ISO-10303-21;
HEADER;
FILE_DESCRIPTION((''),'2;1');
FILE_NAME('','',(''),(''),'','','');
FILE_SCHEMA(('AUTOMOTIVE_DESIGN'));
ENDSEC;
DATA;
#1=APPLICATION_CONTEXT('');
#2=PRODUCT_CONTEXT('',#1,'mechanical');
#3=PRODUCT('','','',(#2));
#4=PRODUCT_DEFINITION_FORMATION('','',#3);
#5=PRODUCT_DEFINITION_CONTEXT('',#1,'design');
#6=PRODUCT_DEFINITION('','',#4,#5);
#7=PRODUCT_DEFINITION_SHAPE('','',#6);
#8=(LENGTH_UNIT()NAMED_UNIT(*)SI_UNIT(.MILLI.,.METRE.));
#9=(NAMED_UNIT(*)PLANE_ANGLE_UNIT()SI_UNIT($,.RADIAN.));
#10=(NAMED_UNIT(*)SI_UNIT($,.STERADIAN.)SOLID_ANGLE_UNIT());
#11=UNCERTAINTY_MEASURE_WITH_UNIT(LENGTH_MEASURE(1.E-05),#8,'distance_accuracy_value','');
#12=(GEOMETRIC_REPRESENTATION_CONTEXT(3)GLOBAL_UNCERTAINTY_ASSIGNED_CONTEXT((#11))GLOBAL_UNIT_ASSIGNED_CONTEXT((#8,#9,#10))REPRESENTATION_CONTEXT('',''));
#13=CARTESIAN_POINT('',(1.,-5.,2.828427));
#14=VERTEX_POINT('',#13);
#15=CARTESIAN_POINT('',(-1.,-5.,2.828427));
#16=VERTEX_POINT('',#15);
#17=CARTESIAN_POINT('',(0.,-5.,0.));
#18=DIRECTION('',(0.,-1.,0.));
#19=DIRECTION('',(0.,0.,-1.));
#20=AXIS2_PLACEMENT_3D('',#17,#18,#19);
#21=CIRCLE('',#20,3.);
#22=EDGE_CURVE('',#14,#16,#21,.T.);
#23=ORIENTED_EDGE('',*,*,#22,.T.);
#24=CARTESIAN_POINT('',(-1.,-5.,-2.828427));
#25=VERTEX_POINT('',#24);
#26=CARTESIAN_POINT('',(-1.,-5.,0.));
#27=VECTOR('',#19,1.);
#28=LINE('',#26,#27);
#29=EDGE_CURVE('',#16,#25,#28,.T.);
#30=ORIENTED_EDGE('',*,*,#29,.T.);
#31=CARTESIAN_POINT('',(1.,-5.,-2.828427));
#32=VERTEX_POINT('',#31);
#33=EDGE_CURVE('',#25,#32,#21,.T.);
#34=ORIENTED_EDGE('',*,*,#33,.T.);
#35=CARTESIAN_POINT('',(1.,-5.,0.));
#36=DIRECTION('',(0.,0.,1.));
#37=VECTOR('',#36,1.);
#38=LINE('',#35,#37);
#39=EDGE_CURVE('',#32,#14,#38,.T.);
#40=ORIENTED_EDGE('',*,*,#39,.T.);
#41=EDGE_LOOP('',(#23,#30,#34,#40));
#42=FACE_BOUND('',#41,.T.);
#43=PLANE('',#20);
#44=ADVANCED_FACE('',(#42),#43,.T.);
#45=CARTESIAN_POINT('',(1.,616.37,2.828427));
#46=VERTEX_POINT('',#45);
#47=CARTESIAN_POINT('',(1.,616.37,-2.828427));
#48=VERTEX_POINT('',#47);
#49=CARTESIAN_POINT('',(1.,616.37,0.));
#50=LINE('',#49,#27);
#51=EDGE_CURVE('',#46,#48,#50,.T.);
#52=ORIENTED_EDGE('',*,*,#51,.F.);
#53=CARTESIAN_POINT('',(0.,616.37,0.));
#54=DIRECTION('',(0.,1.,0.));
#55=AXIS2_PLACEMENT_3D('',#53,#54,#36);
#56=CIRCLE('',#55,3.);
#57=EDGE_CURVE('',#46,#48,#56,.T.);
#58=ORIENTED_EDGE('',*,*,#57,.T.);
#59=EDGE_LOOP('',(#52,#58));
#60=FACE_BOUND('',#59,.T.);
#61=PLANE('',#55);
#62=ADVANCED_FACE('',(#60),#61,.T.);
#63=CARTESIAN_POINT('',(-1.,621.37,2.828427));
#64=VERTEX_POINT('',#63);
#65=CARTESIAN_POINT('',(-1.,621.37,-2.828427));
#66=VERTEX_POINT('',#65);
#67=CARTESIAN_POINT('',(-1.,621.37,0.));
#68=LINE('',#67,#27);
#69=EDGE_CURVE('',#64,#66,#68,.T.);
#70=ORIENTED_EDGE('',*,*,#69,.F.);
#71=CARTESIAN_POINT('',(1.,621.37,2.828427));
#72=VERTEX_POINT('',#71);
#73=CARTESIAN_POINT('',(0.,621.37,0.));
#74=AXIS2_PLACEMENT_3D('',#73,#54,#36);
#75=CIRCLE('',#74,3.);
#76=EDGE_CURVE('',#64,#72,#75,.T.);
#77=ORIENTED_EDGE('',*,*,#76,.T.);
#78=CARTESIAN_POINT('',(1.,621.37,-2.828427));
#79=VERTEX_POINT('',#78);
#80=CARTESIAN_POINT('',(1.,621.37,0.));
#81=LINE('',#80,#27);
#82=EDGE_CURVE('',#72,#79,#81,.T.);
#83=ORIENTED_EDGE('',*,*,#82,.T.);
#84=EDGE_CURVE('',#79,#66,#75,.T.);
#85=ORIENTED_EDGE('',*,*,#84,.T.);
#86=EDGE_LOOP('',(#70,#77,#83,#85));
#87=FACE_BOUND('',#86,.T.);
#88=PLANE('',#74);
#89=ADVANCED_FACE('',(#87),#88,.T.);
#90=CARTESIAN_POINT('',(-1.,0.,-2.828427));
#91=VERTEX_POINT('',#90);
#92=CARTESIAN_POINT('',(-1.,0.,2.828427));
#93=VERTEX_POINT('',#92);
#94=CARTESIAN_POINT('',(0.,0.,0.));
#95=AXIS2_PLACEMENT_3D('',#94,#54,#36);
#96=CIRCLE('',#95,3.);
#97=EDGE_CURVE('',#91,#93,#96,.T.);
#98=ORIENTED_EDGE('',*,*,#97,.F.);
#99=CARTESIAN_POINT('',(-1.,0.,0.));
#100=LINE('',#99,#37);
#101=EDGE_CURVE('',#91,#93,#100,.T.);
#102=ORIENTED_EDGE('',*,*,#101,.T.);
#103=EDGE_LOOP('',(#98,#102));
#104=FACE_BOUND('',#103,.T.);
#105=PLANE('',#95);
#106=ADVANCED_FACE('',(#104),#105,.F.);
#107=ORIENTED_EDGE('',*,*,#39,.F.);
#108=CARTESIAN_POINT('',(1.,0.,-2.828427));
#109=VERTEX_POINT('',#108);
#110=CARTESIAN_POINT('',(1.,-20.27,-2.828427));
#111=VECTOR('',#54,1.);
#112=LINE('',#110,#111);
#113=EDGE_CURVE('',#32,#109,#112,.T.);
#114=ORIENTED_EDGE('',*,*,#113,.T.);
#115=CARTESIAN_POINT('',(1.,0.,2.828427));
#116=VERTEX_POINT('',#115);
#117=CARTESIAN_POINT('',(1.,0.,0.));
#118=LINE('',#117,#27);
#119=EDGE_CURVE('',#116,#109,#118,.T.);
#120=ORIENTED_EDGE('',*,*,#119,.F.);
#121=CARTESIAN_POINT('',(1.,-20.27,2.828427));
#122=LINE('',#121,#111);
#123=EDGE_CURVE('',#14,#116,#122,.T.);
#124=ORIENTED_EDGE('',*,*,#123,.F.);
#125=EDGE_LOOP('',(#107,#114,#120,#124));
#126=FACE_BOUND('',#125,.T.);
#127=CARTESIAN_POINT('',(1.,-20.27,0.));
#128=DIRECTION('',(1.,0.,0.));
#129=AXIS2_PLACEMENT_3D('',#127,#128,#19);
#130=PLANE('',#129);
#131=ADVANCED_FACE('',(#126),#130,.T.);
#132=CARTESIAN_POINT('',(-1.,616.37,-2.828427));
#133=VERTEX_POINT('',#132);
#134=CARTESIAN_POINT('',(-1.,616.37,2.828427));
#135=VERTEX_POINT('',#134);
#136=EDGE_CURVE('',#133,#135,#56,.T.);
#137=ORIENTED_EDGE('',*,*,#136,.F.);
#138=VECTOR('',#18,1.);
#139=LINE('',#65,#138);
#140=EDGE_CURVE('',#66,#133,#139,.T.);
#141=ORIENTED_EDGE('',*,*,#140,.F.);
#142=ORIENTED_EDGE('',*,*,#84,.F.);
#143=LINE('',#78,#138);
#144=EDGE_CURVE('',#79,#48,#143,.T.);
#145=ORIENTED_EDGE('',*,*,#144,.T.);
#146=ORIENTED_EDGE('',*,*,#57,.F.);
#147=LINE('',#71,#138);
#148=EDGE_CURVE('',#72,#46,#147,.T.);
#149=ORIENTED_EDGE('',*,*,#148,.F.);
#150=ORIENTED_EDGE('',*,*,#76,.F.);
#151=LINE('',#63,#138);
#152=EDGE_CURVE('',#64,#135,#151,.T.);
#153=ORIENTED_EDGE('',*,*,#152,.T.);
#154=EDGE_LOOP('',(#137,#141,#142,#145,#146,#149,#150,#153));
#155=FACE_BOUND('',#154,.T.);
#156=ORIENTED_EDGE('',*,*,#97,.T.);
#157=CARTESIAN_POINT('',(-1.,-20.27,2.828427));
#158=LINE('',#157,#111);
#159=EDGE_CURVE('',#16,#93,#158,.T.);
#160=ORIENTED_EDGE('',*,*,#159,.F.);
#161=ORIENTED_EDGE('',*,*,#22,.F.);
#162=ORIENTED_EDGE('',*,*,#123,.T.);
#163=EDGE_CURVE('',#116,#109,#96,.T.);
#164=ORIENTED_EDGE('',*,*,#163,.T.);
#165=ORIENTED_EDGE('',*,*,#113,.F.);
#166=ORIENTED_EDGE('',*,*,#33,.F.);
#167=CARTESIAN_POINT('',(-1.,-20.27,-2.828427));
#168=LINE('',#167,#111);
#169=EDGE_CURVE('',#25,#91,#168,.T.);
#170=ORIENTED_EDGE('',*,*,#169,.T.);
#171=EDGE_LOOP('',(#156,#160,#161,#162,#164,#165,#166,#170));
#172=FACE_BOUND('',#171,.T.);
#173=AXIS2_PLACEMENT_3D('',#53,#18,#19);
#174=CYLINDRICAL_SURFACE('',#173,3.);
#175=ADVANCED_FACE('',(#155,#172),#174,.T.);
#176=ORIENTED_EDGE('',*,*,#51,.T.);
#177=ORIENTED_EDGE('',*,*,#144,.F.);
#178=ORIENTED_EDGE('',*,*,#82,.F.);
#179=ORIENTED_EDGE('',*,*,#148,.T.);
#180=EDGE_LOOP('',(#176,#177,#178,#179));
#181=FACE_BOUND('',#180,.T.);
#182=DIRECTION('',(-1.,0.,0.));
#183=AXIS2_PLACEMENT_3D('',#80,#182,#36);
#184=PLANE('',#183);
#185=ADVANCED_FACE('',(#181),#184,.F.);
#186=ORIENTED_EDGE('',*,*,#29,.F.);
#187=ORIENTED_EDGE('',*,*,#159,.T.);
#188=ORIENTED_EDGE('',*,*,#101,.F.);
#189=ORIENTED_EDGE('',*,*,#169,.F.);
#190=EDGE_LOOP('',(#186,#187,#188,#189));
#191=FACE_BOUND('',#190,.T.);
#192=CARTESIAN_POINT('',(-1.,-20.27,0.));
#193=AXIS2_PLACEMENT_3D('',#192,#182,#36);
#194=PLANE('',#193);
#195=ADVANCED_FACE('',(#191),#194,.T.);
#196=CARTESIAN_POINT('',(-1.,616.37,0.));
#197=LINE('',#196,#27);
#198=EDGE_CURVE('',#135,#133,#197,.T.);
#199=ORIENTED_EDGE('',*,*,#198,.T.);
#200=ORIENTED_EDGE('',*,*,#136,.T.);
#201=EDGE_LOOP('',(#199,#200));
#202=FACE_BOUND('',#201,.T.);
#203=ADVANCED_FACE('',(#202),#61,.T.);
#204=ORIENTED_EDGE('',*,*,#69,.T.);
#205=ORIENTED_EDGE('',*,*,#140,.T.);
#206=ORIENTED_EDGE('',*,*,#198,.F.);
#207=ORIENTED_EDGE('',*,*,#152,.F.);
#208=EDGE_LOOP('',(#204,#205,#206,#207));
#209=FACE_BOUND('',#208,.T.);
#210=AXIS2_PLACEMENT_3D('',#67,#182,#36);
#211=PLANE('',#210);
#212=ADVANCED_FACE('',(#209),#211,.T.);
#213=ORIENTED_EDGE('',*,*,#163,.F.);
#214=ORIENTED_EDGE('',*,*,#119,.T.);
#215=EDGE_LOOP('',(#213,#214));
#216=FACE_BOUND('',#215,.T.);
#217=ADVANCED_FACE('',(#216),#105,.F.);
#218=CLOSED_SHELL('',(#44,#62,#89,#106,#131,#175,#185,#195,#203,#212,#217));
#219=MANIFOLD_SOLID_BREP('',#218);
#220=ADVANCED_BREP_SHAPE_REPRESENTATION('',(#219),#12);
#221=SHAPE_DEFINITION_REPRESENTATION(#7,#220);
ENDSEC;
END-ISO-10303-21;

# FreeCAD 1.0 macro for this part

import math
import FreeCAD as App
import Part
import Sketcher
from FreeCAD import Vector

doc = App.newDocument("Part")
body = doc.addObject("PartDesign::Body", "Body")

# Sketch on XZ plane
sketch1 = body.newObject("Sketcher::SketchObject", "Sketch")
sketch1.AttachmentSupport = (doc.getObject("XZ_Plane"), [""])
sketch1.MapMode = "FlatFace"
sketch1.addGeometry(Part.Circle(Vector(0, 0, 0), Vector(0, 0, 1), 3), False)
sketch1.addConstraint([
    Sketcher.Constraint("Coincident", 0, 3, -1, 1),
    Sketcher.Constraint("Diameter", 0, 6.0),
])
pad1 = body.newObject("PartDesign::Pad", "Pad")
pad1.Profile = sketch1
pad1.Length = 616.37
pad1.Reversed = True

# Sketch on XZ plane
sketch2 = body.newObject("Sketcher::SketchObject", "Sketch001")
sketch2.AttachmentSupport = (doc.getObject("XZ_Plane"), [""])
sketch2.MapMode = "FlatFace"
sketch2.AttachmentOffset = App.Placement(Vector(0, 0, -616.37), App.Rotation())
sketch2.addGeometry([
    Part.ArcOfCircle(Part.Circle(Vector(0, 0, 0), Vector(0, 0, 1), 3), math.radians(90), math.radians(109.47)),  # 0
    Part.ArcOfCircle(Part.Circle(Vector(0, 0, 0), Vector(0, 0, 1), 3), math.radians(70.53), math.radians(90)),  # 1
    Part.LineSegment(Vector(1, 2.8, 0), Vector(1, -2.8, 0)),  # 2
    Part.ArcOfCircle(Part.Circle(Vector(0, 0, 0), Vector(0, 0, 1), 3), math.radians(-90), math.radians(-70.53)),  # 3
    Part.ArcOfCircle(Part.Circle(Vector(0, 0, 0), Vector(0, 0, 1), 3), math.radians(-109.47), math.radians(-90)),  # 4
    Part.LineSegment(Vector(-1, -2.8, 0), Vector(-1, 2.8, 0)),  # 5
], False)
sketch2.addConstraint([
    Sketcher.Constraint("Tangent", 0, 1, 1, 2),
    Sketcher.Constraint("Coincident", 1, 1, 2, 1),
    Sketcher.Constraint("Coincident", 2, 2, 3, 2),
    Sketcher.Constraint("Tangent", 3, 1, 4, 2),
    Sketcher.Constraint("Coincident", 4, 1, 5, 1),
    Sketcher.Constraint("Coincident", 5, 2, 0, 2),
    Sketcher.Constraint("Vertical", 2),
    Sketcher.Constraint("Vertical", 5),
    Sketcher.Constraint("Coincident", 0, 3, -1, 1),
    Sketcher.Constraint("Coincident", 3, 3, -1, 1),
    Sketcher.Constraint("Equal", 0, 1),
    Sketcher.Constraint("Equal", 1, 3),
    Sketcher.Constraint("Equal", 3, 4),
    Sketcher.Constraint("PointOnObject", 0, 1, -2),
    Sketcher.Constraint("PointOnObject", 3, 1, -2),
    Sketcher.Constraint("Horizontal", 2, 2, 4, 1),
    Sketcher.Constraint("Radius", 0, 3.0),
    Sketcher.Constraint("DistanceX", -1, 1, 1, 1, 1.0),
])
pad2 = body.newObject("PartDesign::Pad", "Pad001")
pad2.Profile = sketch2
pad2.Length = 5
pad2.Reversed = True

# Sketch on XZ plane
sketch3 = body.newObject("Sketcher::SketchObject", "Sketch002")
sketch3.AttachmentSupport = (doc.getObject("XZ_Plane"), [""])
sketch3.MapMode = "FlatFace"
sketch3.AttachmentOffset = App.Placement(Vector(0, 0, -621.37), App.Rotation())
sketch3.addGeometry([
    Part.LineSegment(Vector(-1, -2.8, 0), Vector(-1, 2.8, 0)),
    Part.ArcOfCircle(Part.Circle(Vector(0, 0, 0), Vector(0, 0, 1), 3), math.radians(71), math.radians(109)),
    Part.LineSegment(Vector(1, 2.8, 0), Vector(1, -2.8, 0)),
    Part.ArcOfCircle(Part.Circle(Vector(0, 0, 0), Vector(0, 0, 1), 3), math.radians(-109), math.radians(-71)),
], False)
sketch3.addConstraint([
    Sketcher.Constraint("Coincident", 0, 2, 1, 2),
    Sketcher.Constraint("Coincident", 1, 1, 2, 1),
    Sketcher.Constraint("Coincident", 2, 2, 3, 2),
    Sketcher.Constraint("Coincident", 3, 1, 0, 1),
    Sketcher.Constraint("Vertical", 0),
    Sketcher.Constraint("Vertical", 2),
    Sketcher.Constraint("Coincident", 1, 3, -1, 1),
    Sketcher.Constraint("Coincident", 3, 3, -1, 1),
    Sketcher.Constraint("Equal", 1, 3),
    Sketcher.Constraint("Horizontal", 0, 2, 1, 1),
    Sketcher.Constraint("Radius", 1, 3.0),
    Sketcher.Constraint("DistanceX", 0, 2, -1, 1, 1.0),
])
pad3 = body.newObject("PartDesign::Pad", "Pad002")
pad3.Profile = sketch3
pad3.Length = 641.64

# Sketch on XZ plane
sketch4 = body.newObject("Sketcher::SketchObject", "Sketch003")
sketch4.AttachmentSupport = (doc.getObject("XZ_Plane"), [""])
sketch4.MapMode = "FlatFace"
sketch4.AttachmentOffset = App.Placement(Vector(0, 0, 20.27), App.Rotation())
sketch4.addGeometry([
    Part.ArcOfCircle(Part.Circle(Vector(0, 0, 0), Vector(0, 0, 1), 3), math.radians(-109), math.radians(-71)),
    Part.LineSegment(Vector(1, -2.8, 0), Vector(1, 2.8, 0)),
    Part.ArcOfCircle(Part.Circle(Vector(0, 0, 0), Vector(0, 0, 1), 3), math.radians(71), math.radians(109)),
    Part.LineSegment(Vector(-1, 2.8, 0), Vector(-1, -2.8, 0)),
], False)
sketch4.addConstraint([
    Sketcher.Constraint("Coincident", 0, 2, 1, 1),
    Sketcher.Constraint("Coincident", 1, 2, 2, 1),
    Sketcher.Constraint("Coincident", 2, 2, 3, 1),
    Sketcher.Constraint("Coincident", 3, 2, 0, 1),
    Sketcher.Constraint("Vertical", 1),
    Sketcher.Constraint("Vertical", 3),
    Sketcher.Constraint("Coincident", 0, 3, -1, 1),
    Sketcher.Constraint("Coincident", 2, 3, -1, 1),
    Sketcher.Constraint("Equal", 0, 2),
    Sketcher.Constraint("Horizontal", 1, 2, 2, 2),
    Sketcher.Constraint("Radius", 0, 3.0),
    Sketcher.Constraint("DistanceX", -1, 1, 0, 2, 1.0),
])
pocket1 = body.newObject("PartDesign::Pocket", "Pocket")
pocket1.Profile = sketch4
pocket1.Length = 15.27

doc.recompute()
